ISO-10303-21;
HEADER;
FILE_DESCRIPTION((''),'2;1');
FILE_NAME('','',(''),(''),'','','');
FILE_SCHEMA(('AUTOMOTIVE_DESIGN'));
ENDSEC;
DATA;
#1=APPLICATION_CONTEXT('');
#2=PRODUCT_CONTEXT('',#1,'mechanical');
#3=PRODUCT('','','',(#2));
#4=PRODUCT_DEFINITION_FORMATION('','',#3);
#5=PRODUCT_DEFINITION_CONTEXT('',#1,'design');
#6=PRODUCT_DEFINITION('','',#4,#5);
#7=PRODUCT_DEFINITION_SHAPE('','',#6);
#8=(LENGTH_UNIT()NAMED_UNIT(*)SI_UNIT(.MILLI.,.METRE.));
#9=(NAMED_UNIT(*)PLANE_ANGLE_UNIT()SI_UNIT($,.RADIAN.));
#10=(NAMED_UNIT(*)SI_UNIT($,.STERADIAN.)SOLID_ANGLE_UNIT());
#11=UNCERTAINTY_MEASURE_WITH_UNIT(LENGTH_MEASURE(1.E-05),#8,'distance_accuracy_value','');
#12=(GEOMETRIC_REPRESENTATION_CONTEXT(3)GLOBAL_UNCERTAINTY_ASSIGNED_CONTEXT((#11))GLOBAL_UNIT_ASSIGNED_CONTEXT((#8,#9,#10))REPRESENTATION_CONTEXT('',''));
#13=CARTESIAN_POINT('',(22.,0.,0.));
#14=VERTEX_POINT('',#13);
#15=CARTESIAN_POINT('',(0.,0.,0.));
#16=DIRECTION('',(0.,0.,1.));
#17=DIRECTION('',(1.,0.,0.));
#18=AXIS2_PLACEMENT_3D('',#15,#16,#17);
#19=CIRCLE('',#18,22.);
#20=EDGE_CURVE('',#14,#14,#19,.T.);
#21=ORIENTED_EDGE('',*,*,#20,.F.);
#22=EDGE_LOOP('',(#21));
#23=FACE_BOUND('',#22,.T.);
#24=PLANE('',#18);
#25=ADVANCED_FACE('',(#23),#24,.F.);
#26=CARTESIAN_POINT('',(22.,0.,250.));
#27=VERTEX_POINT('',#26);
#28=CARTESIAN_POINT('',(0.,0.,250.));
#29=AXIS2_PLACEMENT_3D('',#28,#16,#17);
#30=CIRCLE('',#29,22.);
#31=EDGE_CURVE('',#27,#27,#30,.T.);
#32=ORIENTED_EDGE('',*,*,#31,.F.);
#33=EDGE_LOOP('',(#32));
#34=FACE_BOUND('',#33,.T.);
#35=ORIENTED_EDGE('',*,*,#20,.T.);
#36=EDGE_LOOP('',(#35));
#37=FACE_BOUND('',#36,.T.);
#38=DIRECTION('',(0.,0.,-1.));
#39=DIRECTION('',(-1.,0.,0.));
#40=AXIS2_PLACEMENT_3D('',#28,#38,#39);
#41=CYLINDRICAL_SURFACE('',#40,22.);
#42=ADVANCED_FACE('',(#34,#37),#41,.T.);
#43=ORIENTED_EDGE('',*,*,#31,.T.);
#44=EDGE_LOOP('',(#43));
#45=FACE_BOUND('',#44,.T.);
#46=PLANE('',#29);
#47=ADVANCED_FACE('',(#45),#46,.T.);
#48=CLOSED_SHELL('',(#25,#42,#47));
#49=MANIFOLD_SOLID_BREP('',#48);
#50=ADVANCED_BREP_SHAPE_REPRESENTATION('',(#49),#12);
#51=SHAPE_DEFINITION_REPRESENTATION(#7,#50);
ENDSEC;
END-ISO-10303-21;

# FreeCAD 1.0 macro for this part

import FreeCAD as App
import Part
import Sketcher
Q = App.Units.Quantity

doc = App.newDocument("Part")
body = doc.addObject("PartDesign::Body", "Body")

# Sketch on XY plane
sketch1 = body.newObject("Sketcher::SketchObject", "Sketch")
sketch1.AttachmentSupport = (doc.getObject("XY_Plane"), [""])
sketch1.MapMode = "FlatFace"
sketch1.addGeometry(Part.Circle(App.Vector(0, 0, 0), App.Vector(0, 0, 1), 22), False)
sketch1.addConstraint(Sketcher.Constraint("Coincident", 0, 3, -1, 1))
sketch1.addConstraint(Sketcher.Constraint("Diameter", 0, Q("44 mm")))
pad1 = body.newObject("PartDesign::Pad", "Pad")
pad1.Profile = sketch1
pad1.Length = 250

doc.recompute()
